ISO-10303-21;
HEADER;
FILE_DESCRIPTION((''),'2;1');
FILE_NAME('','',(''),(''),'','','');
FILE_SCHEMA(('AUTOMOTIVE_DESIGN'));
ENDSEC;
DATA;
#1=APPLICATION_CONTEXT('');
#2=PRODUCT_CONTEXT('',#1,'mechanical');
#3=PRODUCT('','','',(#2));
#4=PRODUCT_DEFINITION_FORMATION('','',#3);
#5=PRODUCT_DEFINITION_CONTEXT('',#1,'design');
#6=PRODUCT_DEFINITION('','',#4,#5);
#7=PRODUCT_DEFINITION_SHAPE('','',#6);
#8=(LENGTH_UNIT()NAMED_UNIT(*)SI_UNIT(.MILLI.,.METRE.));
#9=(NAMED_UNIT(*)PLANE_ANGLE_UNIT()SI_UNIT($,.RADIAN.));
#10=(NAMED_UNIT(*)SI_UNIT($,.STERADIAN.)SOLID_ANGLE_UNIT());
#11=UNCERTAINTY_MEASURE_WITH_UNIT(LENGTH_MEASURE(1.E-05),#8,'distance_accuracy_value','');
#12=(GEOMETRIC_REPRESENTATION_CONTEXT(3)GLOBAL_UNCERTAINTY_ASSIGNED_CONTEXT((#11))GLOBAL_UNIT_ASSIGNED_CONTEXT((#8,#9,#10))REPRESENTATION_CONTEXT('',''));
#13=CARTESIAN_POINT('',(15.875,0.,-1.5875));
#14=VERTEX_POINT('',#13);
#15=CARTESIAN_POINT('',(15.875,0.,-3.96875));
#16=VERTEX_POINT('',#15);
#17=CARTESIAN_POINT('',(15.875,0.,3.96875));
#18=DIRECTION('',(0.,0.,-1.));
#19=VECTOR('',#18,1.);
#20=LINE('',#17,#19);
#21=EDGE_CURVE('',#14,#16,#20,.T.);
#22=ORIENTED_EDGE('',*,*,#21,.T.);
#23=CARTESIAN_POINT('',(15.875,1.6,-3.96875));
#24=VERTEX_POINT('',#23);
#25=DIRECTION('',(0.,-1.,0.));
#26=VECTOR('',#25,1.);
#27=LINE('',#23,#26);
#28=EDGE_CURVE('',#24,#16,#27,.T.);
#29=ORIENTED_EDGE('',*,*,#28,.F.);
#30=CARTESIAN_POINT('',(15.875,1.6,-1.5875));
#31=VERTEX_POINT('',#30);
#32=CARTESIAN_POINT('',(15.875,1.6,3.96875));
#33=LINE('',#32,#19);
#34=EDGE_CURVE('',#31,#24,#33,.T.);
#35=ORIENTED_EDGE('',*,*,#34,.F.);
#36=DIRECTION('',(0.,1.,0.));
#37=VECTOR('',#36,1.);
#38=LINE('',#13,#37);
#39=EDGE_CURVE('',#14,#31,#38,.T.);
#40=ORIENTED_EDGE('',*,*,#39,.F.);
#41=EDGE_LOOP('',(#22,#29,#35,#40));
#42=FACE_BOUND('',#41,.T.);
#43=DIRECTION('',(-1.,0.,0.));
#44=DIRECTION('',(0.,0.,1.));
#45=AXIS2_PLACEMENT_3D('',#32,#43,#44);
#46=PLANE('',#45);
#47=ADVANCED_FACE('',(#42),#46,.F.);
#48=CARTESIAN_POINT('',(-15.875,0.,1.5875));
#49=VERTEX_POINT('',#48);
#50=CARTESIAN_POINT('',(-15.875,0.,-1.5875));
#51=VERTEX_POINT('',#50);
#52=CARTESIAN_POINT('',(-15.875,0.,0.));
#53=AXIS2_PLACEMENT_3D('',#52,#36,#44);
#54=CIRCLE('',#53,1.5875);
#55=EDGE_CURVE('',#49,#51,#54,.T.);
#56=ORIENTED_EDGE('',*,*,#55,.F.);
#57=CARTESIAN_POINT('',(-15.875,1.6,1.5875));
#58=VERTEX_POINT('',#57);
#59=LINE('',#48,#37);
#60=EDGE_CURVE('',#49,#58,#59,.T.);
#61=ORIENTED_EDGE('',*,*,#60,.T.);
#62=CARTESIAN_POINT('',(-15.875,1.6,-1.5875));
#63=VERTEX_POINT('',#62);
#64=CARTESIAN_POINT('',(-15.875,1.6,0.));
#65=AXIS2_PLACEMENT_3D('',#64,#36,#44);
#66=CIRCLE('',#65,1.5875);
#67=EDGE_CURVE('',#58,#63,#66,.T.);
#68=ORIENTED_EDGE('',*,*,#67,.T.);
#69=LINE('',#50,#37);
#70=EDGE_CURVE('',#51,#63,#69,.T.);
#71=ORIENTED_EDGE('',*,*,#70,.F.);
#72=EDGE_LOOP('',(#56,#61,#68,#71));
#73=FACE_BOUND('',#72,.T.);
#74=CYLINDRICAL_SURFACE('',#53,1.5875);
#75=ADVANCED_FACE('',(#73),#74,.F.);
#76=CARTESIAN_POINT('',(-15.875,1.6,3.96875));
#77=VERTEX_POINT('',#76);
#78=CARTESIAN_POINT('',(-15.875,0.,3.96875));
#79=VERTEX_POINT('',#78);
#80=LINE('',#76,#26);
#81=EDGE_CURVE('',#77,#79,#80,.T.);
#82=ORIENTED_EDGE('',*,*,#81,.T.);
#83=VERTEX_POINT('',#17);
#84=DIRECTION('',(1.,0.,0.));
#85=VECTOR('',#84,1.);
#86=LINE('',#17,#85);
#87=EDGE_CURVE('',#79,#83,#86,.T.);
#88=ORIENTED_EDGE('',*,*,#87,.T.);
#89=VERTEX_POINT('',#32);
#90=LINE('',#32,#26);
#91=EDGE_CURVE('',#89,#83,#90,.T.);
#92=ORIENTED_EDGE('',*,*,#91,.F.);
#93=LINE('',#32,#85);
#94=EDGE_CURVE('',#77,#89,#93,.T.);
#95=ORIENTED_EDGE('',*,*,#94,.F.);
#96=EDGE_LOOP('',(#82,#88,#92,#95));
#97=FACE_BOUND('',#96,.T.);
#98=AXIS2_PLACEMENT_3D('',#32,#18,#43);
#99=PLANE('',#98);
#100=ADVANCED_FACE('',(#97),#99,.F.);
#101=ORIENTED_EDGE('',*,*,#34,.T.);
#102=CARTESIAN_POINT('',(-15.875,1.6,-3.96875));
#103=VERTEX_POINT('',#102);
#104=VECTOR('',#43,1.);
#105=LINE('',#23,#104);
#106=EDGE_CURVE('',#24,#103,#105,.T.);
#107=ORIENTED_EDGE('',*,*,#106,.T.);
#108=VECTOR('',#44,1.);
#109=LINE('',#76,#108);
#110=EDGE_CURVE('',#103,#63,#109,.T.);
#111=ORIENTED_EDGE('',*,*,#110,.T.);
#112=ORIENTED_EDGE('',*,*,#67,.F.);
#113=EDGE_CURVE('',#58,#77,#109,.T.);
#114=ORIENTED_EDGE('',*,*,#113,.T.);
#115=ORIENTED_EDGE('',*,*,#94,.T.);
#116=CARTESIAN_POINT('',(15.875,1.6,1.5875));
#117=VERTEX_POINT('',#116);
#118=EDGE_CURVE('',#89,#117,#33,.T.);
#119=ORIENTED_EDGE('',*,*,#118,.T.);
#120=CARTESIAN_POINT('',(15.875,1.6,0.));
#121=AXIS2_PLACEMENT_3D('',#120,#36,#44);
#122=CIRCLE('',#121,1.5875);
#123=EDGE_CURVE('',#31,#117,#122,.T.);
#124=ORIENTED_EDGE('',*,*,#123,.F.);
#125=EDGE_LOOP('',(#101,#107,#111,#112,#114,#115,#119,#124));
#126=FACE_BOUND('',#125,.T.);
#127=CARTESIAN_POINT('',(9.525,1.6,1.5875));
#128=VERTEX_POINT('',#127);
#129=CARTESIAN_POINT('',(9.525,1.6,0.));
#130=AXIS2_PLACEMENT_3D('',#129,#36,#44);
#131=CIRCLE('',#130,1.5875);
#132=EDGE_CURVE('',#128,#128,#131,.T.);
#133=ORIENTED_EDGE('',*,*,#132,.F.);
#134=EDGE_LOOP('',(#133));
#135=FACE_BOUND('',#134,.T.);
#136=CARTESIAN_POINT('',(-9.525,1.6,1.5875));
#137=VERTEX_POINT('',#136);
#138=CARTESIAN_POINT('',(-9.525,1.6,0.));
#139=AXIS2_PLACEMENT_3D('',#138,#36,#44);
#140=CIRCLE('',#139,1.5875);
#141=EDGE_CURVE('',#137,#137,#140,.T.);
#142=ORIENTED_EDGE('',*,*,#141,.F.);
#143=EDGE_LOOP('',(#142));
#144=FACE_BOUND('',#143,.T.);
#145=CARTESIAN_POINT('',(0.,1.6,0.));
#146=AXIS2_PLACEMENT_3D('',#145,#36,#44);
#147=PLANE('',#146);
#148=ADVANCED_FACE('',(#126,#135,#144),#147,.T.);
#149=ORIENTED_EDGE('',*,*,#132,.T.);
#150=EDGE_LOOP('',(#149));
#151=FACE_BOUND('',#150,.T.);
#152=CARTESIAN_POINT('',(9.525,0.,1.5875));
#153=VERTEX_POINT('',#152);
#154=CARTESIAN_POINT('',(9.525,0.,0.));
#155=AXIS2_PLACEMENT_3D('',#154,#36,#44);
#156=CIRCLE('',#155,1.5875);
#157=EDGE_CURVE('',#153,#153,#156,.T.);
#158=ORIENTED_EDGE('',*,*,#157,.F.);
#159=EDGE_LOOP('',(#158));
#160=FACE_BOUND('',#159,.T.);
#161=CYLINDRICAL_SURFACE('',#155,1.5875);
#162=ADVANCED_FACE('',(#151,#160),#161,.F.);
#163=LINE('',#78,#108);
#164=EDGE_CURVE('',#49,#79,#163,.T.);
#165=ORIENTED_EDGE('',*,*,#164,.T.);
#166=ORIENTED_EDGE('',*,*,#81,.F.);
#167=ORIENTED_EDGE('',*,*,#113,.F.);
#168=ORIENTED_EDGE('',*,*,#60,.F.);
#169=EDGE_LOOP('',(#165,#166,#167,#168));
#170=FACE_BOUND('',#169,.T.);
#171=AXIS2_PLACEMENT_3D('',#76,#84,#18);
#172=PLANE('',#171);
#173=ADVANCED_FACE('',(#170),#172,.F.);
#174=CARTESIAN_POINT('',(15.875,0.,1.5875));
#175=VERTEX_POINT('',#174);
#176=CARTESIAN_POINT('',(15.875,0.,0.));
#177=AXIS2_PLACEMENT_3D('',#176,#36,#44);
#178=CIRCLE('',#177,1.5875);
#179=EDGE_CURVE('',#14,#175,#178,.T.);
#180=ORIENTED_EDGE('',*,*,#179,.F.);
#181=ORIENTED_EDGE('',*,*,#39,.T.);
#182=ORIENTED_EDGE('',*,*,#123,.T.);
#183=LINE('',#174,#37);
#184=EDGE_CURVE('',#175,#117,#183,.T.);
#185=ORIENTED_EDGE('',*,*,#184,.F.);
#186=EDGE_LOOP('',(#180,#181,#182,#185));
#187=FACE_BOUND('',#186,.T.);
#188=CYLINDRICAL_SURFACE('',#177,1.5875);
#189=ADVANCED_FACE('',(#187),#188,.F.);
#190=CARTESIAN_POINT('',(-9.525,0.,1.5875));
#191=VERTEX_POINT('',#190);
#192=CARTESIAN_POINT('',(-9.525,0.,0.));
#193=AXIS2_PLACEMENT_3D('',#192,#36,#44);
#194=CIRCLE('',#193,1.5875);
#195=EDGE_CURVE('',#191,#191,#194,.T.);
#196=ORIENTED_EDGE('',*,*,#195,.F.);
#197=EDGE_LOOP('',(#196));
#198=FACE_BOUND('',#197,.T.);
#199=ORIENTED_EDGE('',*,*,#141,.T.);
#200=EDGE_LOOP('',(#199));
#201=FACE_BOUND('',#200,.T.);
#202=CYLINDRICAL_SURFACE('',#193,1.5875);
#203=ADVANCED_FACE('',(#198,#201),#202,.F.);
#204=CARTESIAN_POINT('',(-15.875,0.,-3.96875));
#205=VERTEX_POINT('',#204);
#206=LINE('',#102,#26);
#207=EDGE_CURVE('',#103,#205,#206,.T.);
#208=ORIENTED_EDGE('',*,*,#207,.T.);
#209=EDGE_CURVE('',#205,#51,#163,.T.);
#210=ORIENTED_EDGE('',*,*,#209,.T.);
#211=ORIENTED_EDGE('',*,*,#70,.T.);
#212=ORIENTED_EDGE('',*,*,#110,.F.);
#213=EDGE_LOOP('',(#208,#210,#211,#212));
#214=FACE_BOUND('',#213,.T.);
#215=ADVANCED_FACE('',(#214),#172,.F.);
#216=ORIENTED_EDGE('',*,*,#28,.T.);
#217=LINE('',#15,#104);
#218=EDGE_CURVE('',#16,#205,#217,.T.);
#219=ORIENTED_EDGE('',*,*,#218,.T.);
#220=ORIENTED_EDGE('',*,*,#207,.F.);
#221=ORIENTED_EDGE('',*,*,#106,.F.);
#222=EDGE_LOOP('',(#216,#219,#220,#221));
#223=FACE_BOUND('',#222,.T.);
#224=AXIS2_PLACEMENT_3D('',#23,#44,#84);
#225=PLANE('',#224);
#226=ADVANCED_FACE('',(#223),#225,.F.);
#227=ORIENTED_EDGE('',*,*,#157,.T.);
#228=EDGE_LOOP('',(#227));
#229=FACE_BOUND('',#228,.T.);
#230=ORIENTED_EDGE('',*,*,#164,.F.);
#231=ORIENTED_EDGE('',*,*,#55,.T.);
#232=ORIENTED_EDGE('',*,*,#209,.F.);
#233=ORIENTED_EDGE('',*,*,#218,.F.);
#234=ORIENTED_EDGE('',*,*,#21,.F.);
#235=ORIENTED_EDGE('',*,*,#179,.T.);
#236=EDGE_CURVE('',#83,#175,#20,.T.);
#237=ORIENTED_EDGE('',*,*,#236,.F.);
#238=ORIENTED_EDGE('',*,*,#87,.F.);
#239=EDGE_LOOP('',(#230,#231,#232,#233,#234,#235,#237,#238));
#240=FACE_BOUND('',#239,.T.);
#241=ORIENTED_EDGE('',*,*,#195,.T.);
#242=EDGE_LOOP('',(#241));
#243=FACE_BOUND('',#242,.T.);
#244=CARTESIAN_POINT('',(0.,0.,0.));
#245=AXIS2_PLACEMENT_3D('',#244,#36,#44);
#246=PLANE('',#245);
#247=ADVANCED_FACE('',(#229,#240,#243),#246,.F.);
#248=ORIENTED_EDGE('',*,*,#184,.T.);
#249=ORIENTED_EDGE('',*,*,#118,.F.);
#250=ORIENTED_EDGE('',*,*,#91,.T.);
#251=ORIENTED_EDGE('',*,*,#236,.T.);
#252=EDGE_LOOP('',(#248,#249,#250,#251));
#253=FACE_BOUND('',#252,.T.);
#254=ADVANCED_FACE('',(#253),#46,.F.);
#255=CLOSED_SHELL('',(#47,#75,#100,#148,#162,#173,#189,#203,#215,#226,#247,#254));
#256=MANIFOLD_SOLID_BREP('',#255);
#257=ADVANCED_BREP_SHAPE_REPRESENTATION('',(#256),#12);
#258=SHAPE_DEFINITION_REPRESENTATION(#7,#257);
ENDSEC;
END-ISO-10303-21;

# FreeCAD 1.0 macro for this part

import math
import FreeCAD as App
import Part
import Sketcher
from FreeCAD import Vector
Q = App.Units.Quantity


def add_polygon(sketch, points):
    """Adds a closed chain of lines whose ends are joined by coincident constraints."""
    first, n = sketch.GeometryCount, len(points)
    for a, b in zip(points, points[1:] + points[:1]):
        sketch.addGeometry(Part.LineSegment(App.Vector(*a, 0), App.Vector(*b, 0)), False)
    for i in range(n):
        sketch.addConstraint(Sketcher.Constraint("Coincident", first + i, 2, first + (i + 1) % n, 1))

doc = App.newDocument("Part")
params = doc.addObject("Spreadsheet::Sheet", "Params")
for row, (alias, value) in enumerate([
    ("sketch1_width", "1.25 in"),
    ("sketch1_height", "0.3125 in"),
    ("pad1_length", "1.6 mm"),
    ("sketch2_diameter", "0.125 in"),
], start=1):
    params.set(f"A{row}", alias)
    params.set(f"B{row}", "=" + value)
    params.setAlias(f"B{row}", alias)

body = doc.addObject("PartDesign::Body", "Body")

# Sketch on XZ plane
sketch1 = body.newObject("Sketcher::SketchObject", "Sketch")
sketch1.AttachmentSupport = (doc.getObject("XZ_Plane"), [""])
sketch1.MapMode = "FlatFace"
add_polygon(sketch1, [(-16, -4), (-16, 4), (16, 4), (16, -4)])  # lines 0-3
sketch1.addConstraint([
    Sketcher.Constraint("Vertical", 0),
    Sketcher.Constraint("Horizontal", 1),
    Sketcher.Constraint("Vertical", 2),
    Sketcher.Constraint("Horizontal", 3),
    Sketcher.Constraint("Symmetric", 0, 2, 2, 2, -1, 1),
    Sketcher.Constraint("DistanceX", 1, 1, 1, 2, Q("1.25 in")),
    Sketcher.Constraint("DistanceY", 0, 1, 0, 2, Q("0.3125 in")),
])
sketch1.setExpression("Constraints[9]", "Params.sketch1_width")
sketch1.setExpression("Constraints[10]", "Params.sketch1_height")
pad1 = body.newObject("PartDesign::Pad", "Pad")
pad1.Profile = sketch1
pad1.setExpression("Length", "Params.pad1_length")
pad1.Reversed = True

# Sketch on XZ plane
sketch2 = body.newObject("Sketcher::SketchObject", "Sketch001")
sketch2.AttachmentSupport = (doc.getObject("XZ_Plane"), [""])
sketch2.MapMode = "FlatFace"
sketch2.AttachmentOffset = App.Placement(Vector(0, 0, -1.6), App.Rotation())
sketch2.addGeometry([
    Part.Circle(Vector(-9.5, 0, 0), Vector(0, 0, 1), 1.6),  # 0
    Part.Circle(Vector(9.5, 0, 0), Vector(0, 0, 1), 1.6),  # 1
    Part.LineSegment(Vector(-15.9, -1.6, 0), Vector(-15.9, 1.6, 0)),  # 2
    Part.ArcOfCircle(Part.Circle(Vector(-15.9, 0, 0), Vector(0, 0, 1), 1.6), math.radians(-90), math.radians(90)),  # 3
    Part.LineSegment(Vector(15.9, 1.6, 0), Vector(15.9, -1.6, 0)),  # 4
    Part.ArcOfCircle(Part.Circle(Vector(15.9, 0, 0), Vector(0, 0, 1), 1.6), math.radians(90), math.radians(270)),  # 5
], False)
sketch2.addConstraint([
    Sketcher.Constraint("Coincident", 2, 1, 3, 1),
    Sketcher.Constraint("Coincident", 3, 2, 2, 2),
    Sketcher.Constraint("Coincident", 4, 1, 5, 1),
    Sketcher.Constraint("Coincident", 5, 2, 4, 2),
    Sketcher.Constraint("Vertical", 2),
    Sketcher.Constraint("Vertical", 4),
    Sketcher.Constraint("Equal", 0, 1),
    Sketcher.Constraint("Equal", 1, 3),
    Sketcher.Constraint("Equal", 3, 5),
    Sketcher.Constraint("Symmetric", 0, 3, 1, 3, -1, 1),
    Sketcher.Constraint("Symmetric", 3, 3, 5, 3, -1, 1),
    Sketcher.Constraint("Symmetric", 3, 2, 4, 1, -2),
    Sketcher.Constraint("PointOnObject", 0, 3, -1),
    Sketcher.Constraint("Vertical", 3, 3, 2, 1),
    Sketcher.Constraint("Diameter", 0, Q("0.125 in")),
    Sketcher.Constraint("DistanceX", 3, 3, 1, 3, Q("1 in")),
    Sketcher.Constraint("DistanceX", 0, 3, 1, 3, Q("0.75 in")),
])
sketch2.setExpression("Constraints[14]", "Params.sketch2_diameter")
pocket1 = body.newObject("PartDesign::Pocket", "Pocket")
pocket1.Profile = sketch2
pocket1.Type = "ThroughAll"
pocket1.Reversed = True

doc.recompute()
